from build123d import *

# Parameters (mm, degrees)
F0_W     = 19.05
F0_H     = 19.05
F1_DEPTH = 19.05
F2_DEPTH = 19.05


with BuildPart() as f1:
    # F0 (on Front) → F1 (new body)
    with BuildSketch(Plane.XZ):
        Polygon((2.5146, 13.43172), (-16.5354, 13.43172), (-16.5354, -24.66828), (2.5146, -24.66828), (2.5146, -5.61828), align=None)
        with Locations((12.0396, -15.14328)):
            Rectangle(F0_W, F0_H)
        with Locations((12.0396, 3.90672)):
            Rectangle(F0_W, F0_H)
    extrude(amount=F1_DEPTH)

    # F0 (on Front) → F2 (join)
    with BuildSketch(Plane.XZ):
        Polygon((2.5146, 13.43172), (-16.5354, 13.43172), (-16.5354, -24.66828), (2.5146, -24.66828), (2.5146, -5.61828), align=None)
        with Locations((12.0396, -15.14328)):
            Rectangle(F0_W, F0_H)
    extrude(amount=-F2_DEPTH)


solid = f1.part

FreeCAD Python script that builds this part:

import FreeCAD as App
import Part
import Sketcher
from FreeCAD import Vector
Q = App.Units.Quantity


def add_polygon(sketch, points):
    """Adds a closed chain of lines whose ends are joined by coincident constraints."""
    first, n = sketch.GeometryCount, len(points)
    for a, b in zip(points, points[1:] + points[:1]):
        sketch.addGeometry(Part.LineSegment(App.Vector(*a, 0), App.Vector(*b, 0)), False)
    for i in range(n):
        sketch.addConstraint(Sketcher.Constraint("Coincident", first + i, 2, first + (i + 1) % n, 1))

doc = App.newDocument("Part")
body = doc.addObject("PartDesign::Body", "Body")

# Sketch on XZ plane
sketch1 = doc.addObject("Sketcher::SketchObject", "Sketch")
body.addObject(sketch1)
sketch1.AttachmentSupport = (doc.XZ_Plane, [""])
sketch1.MapMode = "FlatFace"
add_polygon(sketch1, [(-16.5354, 13.43172), (-16.5354, -24.66828), (21.5646, -24.66828), (21.5646, 13.43172)])  # lines 0-3
sketch1.addConstraint([
    Sketcher.Constraint("Vertical", 0),
    Sketcher.Constraint("Horizontal", 1),
    Sketcher.Constraint("Vertical", 2),
    Sketcher.Constraint("Horizontal", 3),
    Sketcher.Constraint("Equal", 3, 0),
    Sketcher.Constraint("DistanceX", 1, 1, 1, 2, Q("1.5 in")),
    Sketcher.Constraint("DistanceX", 0, 2, -1, 1, Q("0.651 in")),
    Sketcher.Constraint("DistanceY", 0, 2, -1, 1, Q("24.66828 mm")),
])
pad1 = doc.addObject("PartDesign::Pad", "Pad")
body.addObject(pad1)
pad1.Profile = sketch1
pad1.Length = Q("0.75 in")

# Sketch on XZ plane
sketch2 = doc.addObject("Sketcher::SketchObject", "Sketch001")
body.addObject(sketch2)
sketch2.AttachmentSupport = (doc.XZ_Plane, [""])
sketch2.MapMode = "FlatFace"
add_polygon(sketch2, [(2.5146, 13.43172), (-16.5354, 13.43172), (-16.5354, -24.66828), (21.5646, -24.66828), (21.5646, -5.61828), (2.5146, -5.61828)])  # lines 0-5
sketch2.addConstraint([
    Sketcher.Constraint("Horizontal", 0),
    Sketcher.Constraint("Vertical", 1),
    Sketcher.Constraint("Horizontal", 2),
    Sketcher.Constraint("Vertical", 3),
    Sketcher.Constraint("Horizontal", 4),
    Sketcher.Constraint("Vertical", 5),
    Sketcher.Constraint("Equal", 0, 4),
    Sketcher.Constraint("Equal", 2, 1),
    Sketcher.Constraint("Equal", 4, 3),
    Sketcher.Constraint("DistanceX", 2, 1, 2, 2, Q("1.5 in")),
    Sketcher.Constraint("DistanceX", 0, 2, -1, 1, Q("0.651 in")),
    Sketcher.Constraint("DistanceY", -1, 1, 0, 2, Q("13.43172 mm")),
])
pad2 = doc.addObject("PartDesign::Pad", "Pad001")
body.addObject(pad2)
pad2.Profile = sketch2
pad2.Length = Q("0.75 in")
pad2.Reversed = True

doc.recompute()
